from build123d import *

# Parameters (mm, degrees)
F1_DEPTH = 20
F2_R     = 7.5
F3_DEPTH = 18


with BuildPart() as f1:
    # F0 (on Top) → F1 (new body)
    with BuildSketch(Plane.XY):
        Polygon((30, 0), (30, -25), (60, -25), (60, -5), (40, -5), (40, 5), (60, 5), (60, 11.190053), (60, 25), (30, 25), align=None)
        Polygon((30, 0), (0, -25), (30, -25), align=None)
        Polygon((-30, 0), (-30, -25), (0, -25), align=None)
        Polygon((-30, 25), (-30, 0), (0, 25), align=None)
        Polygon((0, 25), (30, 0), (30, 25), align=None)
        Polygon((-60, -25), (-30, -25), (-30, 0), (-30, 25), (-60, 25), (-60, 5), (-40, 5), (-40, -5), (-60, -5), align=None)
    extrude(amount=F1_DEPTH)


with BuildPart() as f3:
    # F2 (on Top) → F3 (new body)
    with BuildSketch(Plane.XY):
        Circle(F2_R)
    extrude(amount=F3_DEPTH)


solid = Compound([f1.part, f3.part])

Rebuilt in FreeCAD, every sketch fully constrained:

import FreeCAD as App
import Part
import Sketcher

V = App.Vector

doc = App.newDocument("Part")
body = doc.addObject("PartDesign::Body", "Body")
body.AllowCompound = True

sketch1 = body.newObject("Sketcher::SketchObject", "Sketch")
sketch1.AttachmentSupport = (doc.getObject("XY_Plane"), [""])
sketch1.MapMode = "FlatFace"
sketch1.addGeometry(Part.LineSegment(V(60, -25, 0), V(60, -5, 0)), False)
sketch1.addGeometry(Part.LineSegment(V(60, -5, 0), V(40, -5, 0)), False)
sketch1.addGeometry(Part.LineSegment(V(40, -5, 0), V(40, 5, 0)), False)
sketch1.addGeometry(Part.LineSegment(V(40, 5, 0), V(60, 5, 0)), False)
sketch1.addGeometry(Part.LineSegment(V(60, 5, 0), V(60, 25, 0)), False)
sketch1.addGeometry(Part.LineSegment(V(60, 25, 0), V(0, 25, 0)), False)
sketch1.addGeometry(Part.LineSegment(V(0, 25, 0), V(30, 0, 0)), False)
sketch1.addGeometry(Part.LineSegment(V(30, 0, 0), V(0, -25, 0)), False)
sketch1.addGeometry(Part.LineSegment(V(0, -25, 0), V(60, -25, 0)), False)
sketch1.addGeometry(Part.LineSegment(V(0, -25, 0), V(-30, 0, 0)), False)
sketch1.addGeometry(Part.LineSegment(V(-30, 0, 0), V(0, 25, 0)), False)
sketch1.addGeometry(Part.LineSegment(V(0, 25, 0), V(-60, 25, 0)), False)
sketch1.addGeometry(Part.LineSegment(V(-60, 25, 0), V(-60, 5, 0)), False)
sketch1.addGeometry(Part.LineSegment(V(-60, 5, 0), V(-40, 5, 0)), False)
sketch1.addGeometry(Part.LineSegment(V(-40, 5, 0), V(-40, -5, 0)), False)
sketch1.addGeometry(Part.LineSegment(V(-40, -5, 0), V(-60, -5, 0)), False)
sketch1.addGeometry(Part.LineSegment(V(-60, -5, 0), V(-60, -25, 0)), False)
sketch1.addGeometry(Part.LineSegment(V(-60, -25, 0), V(0, -25, 0)), False)
sketch1.addConstraint(Sketcher.Constraint("Coincident", 0, 2, 1, 1))
sketch1.addConstraint(Sketcher.Constraint("Coincident", 1, 2, 2, 1))
sketch1.addConstraint(Sketcher.Constraint("Coincident", 2, 2, 3, 1))
sketch1.addConstraint(Sketcher.Constraint("Coincident", 3, 2, 4, 1))
sketch1.addConstraint(Sketcher.Constraint("Coincident", 4, 2, 5, 1))
sketch1.addConstraint(Sketcher.Constraint("Coincident", 5, 2, 6, 1))
sketch1.addConstraint(Sketcher.Constraint("Coincident", 6, 2, 7, 1))
sketch1.addConstraint(Sketcher.Constraint("Coincident", 7, 2, 8, 1))
sketch1.addConstraint(Sketcher.Constraint("Coincident", 8, 2, 0, 1))
sketch1.addConstraint(Sketcher.Constraint("Coincident", 9, 2, 10, 1))
sketch1.addConstraint(Sketcher.Constraint("Coincident", 10, 2, 11, 1))
sketch1.addConstraint(Sketcher.Constraint("Coincident", 11, 2, 12, 1))
sketch1.addConstraint(Sketcher.Constraint("Coincident", 12, 2, 13, 1))
sketch1.addConstraint(Sketcher.Constraint("Coincident", 13, 2, 14, 1))
sketch1.addConstraint(Sketcher.Constraint("Coincident", 14, 2, 15, 1))
sketch1.addConstraint(Sketcher.Constraint("Coincident", 15, 2, 16, 1))
sketch1.addConstraint(Sketcher.Constraint("Coincident", 16, 2, 17, 1))
sketch1.addConstraint(Sketcher.Constraint("Coincident", 17, 2, 9, 1))
sketch1.addConstraint(Sketcher.Constraint("Vertical", 0))
sketch1.addConstraint(Sketcher.Constraint("Horizontal", 1))
sketch1.addConstraint(Sketcher.Constraint("Vertical", 2))
sketch1.addConstraint(Sketcher.Constraint("Horizontal", 3))
sketch1.addConstraint(Sketcher.Constraint("Vertical", 4))
sketch1.addConstraint(Sketcher.Constraint("Horizontal", 5))
sketch1.addConstraint(Sketcher.Constraint("Horizontal", 8))
sketch1.addConstraint(Sketcher.Constraint("Horizontal", 11))
sketch1.addConstraint(Sketcher.Constraint("Vertical", 12))
sketch1.addConstraint(Sketcher.Constraint("Horizontal", 13))
sketch1.addConstraint(Sketcher.Constraint("Vertical", 14))
sketch1.addConstraint(Sketcher.Constraint("Horizontal", 15))
sketch1.addConstraint(Sketcher.Constraint("Vertical", 16))
sketch1.addConstraint(Sketcher.Constraint("Horizontal", 17))
sketch1.addConstraint(Sketcher.Constraint("Coincident", 10, 2, 5, 2))
sketch1.addConstraint(Sketcher.Constraint("Coincident", 17, 2, 7, 2))
sketch1.addConstraint(Sketcher.Constraint("Symmetric", 5, 2, 7, 2, -1, 1))
sketch1.addConstraint(Sketcher.Constraint("Symmetric", 6, 2, 9, 2, -1, 1))
sketch1.addConstraint(Sketcher.Constraint("Symmetric", 0, 2, 12, 2, -1, 1))
sketch1.addConstraint(Sketcher.Constraint("Symmetric", 2, 2, 14, 2, -1, 1))
sketch1.addConstraint(Sketcher.Constraint("Symmetric", 3, 2, 12, 2, -2))
sketch1.addConstraint(Sketcher.Constraint("PointOnObject", 5, 2, -2))
sketch1.addConstraint(Sketcher.Constraint("PointOnObject", 6, 2, -1))
sketch1.addConstraint(Sketcher.Constraint("Vertical", 12, 2, 15, 2))
sketch1.addConstraint(Sketcher.Constraint("Equal", 15, 0))
sketch1.addConstraint(Sketcher.Constraint("DistanceX", 1, 2, 1, 1, 20.0))
sketch1.addConstraint(Sketcher.Constraint("DistanceX", 5, 2, 5, 1, 60.0))
sketch1.addConstraint(Sketcher.Constraint("DistanceY", 2, 1, 2, 2, 10.0))
sketch1.addConstraint(Sketcher.Constraint("DistanceX", -1, 1, 6, 2, 30.0))
pad1 = body.newObject("PartDesign::Pad", "Pad")
pad1.Profile = sketch1
pad1.Length = 20
body2 = doc.addObject("PartDesign::Body", "Body001")

sketch2 = body2.newObject("Sketcher::SketchObject", "Sketch001")
sketch2.AttachmentSupport = (doc.getObject("XY_Plane001"), [""])
sketch2.MapMode = "FlatFace"
sketch2.addGeometry(Part.Circle(V(0, 0, 0), V(0, 0, 1), 8), False)
sketch2.addConstraint(Sketcher.Constraint("Coincident", 0, 3, -1, 1))
sketch2.addConstraint(Sketcher.Constraint("Diameter", 0, 15.0))
pad2 = body2.newObject("PartDesign::Pad", "Pad001")
pad2.Profile = sketch2
pad2.Length = 18

doc.recompute()
